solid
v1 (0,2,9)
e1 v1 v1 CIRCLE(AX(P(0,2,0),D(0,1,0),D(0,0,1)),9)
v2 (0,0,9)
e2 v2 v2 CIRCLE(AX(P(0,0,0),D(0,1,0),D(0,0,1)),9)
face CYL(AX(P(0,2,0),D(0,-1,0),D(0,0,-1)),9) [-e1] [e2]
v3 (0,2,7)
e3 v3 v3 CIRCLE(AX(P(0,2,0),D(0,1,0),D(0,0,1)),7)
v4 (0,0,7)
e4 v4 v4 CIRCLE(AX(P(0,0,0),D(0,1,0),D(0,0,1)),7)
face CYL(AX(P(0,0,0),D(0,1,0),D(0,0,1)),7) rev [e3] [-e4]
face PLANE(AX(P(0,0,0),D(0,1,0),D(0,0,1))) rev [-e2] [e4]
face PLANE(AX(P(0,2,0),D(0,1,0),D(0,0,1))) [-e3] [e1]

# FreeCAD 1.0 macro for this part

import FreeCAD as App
import Part
import Sketcher
from FreeCAD import Vector

doc = App.newDocument("Part")
body = doc.addObject("PartDesign::Body", "Body")

# Sketch on XZ plane
sketch1 = body.newObject("Sketcher::SketchObject", "Sketch")
sketch1.AttachmentSupport = (doc.getObject("XZ_Plane"), [""])
sketch1.MapMode = "FlatFace"
sketch1.addGeometry(Part.Circle(Vector(0, 0, 0), Vector(0, 0, 1), 9), False)
sketch1.addConstraint([
    Sketcher.Constraint("Coincident", 0, 3, -1, 1),
    Sketcher.Constraint("Diameter", 0, 18.0),
])
pad1 = body.newObject("PartDesign::Pad", "Pad")
pad1.Profile = sketch1
pad1.Length = 2
pad1.Reversed = True

# Sketch on XZ plane
sketch2 = body.newObject("Sketcher::SketchObject", "Sketch001")
sketch2.AttachmentSupport = (doc.getObject("XZ_Plane"), [""])
sketch2.MapMode = "FlatFace"
sketch2.AttachmentOffset = App.Placement(Vector(0, 0, -2), App.Rotation())
sketch2.addGeometry(Part.Circle(Vector(0, 0, 0), Vector(0, 0, 1), 7), False)
sketch2.addConstraint([
    Sketcher.Constraint("Coincident", 0, 3, -1, 1),
    Sketcher.Constraint("Diameter", 0, 14.0),
])
pocket1 = body.newObject("PartDesign::Pocket", "Pocket")
pocket1.Profile = sketch2
pocket1.Length = 2
pocket1.Reversed = True

doc.recompute()
